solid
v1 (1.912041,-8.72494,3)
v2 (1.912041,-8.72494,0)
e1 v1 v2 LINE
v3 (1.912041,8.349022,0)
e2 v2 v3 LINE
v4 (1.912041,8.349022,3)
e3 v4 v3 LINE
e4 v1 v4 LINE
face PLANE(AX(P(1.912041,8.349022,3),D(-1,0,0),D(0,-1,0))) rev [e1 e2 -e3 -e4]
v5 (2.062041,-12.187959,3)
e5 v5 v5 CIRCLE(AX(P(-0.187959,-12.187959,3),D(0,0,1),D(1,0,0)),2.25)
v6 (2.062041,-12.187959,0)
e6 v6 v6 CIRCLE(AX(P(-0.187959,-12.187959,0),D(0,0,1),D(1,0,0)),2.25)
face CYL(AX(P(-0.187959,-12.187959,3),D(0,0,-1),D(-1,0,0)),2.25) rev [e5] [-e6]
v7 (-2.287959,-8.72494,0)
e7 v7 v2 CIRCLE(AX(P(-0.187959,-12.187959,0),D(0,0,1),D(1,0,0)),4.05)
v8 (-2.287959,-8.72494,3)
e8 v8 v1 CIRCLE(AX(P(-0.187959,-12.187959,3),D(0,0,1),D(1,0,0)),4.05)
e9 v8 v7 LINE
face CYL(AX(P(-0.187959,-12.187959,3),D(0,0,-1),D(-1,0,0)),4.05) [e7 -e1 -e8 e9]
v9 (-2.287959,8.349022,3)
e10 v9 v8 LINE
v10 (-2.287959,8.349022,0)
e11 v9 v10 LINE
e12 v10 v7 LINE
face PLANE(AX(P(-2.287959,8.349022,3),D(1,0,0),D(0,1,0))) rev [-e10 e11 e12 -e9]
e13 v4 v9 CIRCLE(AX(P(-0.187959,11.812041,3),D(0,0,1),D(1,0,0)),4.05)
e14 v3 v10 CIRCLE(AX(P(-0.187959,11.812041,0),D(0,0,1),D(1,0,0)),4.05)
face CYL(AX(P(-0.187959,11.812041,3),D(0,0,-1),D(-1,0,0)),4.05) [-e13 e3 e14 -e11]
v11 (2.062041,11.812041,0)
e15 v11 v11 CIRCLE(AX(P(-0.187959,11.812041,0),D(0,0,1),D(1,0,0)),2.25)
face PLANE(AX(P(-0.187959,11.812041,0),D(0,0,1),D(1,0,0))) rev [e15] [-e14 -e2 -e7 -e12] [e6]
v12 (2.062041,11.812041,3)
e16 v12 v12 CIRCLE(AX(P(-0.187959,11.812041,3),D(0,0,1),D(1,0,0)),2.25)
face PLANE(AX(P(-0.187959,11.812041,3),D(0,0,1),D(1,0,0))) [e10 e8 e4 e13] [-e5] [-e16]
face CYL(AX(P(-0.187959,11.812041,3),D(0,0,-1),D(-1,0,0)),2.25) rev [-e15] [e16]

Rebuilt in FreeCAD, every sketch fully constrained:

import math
import FreeCAD as App
import Part
import Sketcher

V = App.Vector
Q = App.Units.Quantity

doc = App.newDocument("Part")
body = doc.addObject("PartDesign::Body", "Body")

# Sketch on XY plane
sketch1 = doc.addObject("Sketcher::SketchObject", "Sketch")
body.addObject(sketch1)
sketch1.AttachmentSupport = (doc.XY_Plane, [""])
sketch1.MapMode = "FlatFace"
sketch1.addGeometry(Part.LineSegment(V(-2.3, 8.3, 0), V(-2.3, -8.7, 0)), False)
sketch1.addGeometry(Part.ArcOfCircle(Part.Circle(V(-0.2, -12.2, 0), V(0, 0, 1), 4), math.radians(121), math.radians(419)), False)
sketch1.addGeometry(Part.LineSegment(V(1.9, -8.7, 0), V(1.9, 8.3, 0)), False)
sketch1.addGeometry(Part.ArcOfCircle(Part.Circle(V(-0.2, 11.8, 0), V(0, 0, 1), 4), math.radians(-59), math.radians(239)), False)
sketch1.addGeometry(Part.Circle(V(-0.2, -12.2, 0), V(0, 0, 1), 2.2), False)
sketch1.addGeometry(Part.Circle(V(-0.2, 11.8, 0), V(0, 0, 1), 2.2), False)
sketch1.addConstraint(Sketcher.Constraint("Coincident", 0, 2, 1, 1))
sketch1.addConstraint(Sketcher.Constraint("Coincident", 1, 2, 2, 1))
sketch1.addConstraint(Sketcher.Constraint("Coincident", 2, 2, 3, 1))
sketch1.addConstraint(Sketcher.Constraint("Coincident", 3, 2, 0, 1))
sketch1.addConstraint(Sketcher.Constraint("Vertical", 0))
sketch1.addConstraint(Sketcher.Constraint("Vertical", 2))
sketch1.addConstraint(Sketcher.Constraint("Coincident", 4, 3, 1, 3))
sketch1.addConstraint(Sketcher.Constraint("Coincident", 5, 3, 3, 3))
sketch1.addConstraint(Sketcher.Constraint("Equal", 1, 3))
sketch1.addConstraint(Sketcher.Constraint("Equal", 4, 5))
sketch1.addConstraint(Sketcher.Constraint("Horizontal", 0, 2, 1, 2))
sketch1.addConstraint(Sketcher.Constraint("Horizontal", 2, 2, 3, 2))
sketch1.addConstraint(Sketcher.Constraint("Diameter", 4, Q("4.5 mm")))
sketch1.addConstraint(Sketcher.Constraint("Radius", 1, Q("4.05 mm")))
sketch1.addConstraint(Sketcher.Constraint("DistanceY", 1, 3, 3, 3, Q("24 mm")))
sketch1.addConstraint(Sketcher.Constraint("DistanceX", 0, 2, 1, 3, Q("2.1 mm")))
sketch1.addConstraint(Sketcher.Constraint("DistanceX", 1, 3, -1, 1, Q("0.187959 mm")))
sketch1.addConstraint(Sketcher.Constraint("DistanceY", 1, 3, -1, 1, Q("12.187959 mm")))
pad1 = doc.addObject("PartDesign::Pad", "Pad")
body.addObject(pad1)
pad1.Profile = sketch1
pad1.Length = 3

doc.recompute()
